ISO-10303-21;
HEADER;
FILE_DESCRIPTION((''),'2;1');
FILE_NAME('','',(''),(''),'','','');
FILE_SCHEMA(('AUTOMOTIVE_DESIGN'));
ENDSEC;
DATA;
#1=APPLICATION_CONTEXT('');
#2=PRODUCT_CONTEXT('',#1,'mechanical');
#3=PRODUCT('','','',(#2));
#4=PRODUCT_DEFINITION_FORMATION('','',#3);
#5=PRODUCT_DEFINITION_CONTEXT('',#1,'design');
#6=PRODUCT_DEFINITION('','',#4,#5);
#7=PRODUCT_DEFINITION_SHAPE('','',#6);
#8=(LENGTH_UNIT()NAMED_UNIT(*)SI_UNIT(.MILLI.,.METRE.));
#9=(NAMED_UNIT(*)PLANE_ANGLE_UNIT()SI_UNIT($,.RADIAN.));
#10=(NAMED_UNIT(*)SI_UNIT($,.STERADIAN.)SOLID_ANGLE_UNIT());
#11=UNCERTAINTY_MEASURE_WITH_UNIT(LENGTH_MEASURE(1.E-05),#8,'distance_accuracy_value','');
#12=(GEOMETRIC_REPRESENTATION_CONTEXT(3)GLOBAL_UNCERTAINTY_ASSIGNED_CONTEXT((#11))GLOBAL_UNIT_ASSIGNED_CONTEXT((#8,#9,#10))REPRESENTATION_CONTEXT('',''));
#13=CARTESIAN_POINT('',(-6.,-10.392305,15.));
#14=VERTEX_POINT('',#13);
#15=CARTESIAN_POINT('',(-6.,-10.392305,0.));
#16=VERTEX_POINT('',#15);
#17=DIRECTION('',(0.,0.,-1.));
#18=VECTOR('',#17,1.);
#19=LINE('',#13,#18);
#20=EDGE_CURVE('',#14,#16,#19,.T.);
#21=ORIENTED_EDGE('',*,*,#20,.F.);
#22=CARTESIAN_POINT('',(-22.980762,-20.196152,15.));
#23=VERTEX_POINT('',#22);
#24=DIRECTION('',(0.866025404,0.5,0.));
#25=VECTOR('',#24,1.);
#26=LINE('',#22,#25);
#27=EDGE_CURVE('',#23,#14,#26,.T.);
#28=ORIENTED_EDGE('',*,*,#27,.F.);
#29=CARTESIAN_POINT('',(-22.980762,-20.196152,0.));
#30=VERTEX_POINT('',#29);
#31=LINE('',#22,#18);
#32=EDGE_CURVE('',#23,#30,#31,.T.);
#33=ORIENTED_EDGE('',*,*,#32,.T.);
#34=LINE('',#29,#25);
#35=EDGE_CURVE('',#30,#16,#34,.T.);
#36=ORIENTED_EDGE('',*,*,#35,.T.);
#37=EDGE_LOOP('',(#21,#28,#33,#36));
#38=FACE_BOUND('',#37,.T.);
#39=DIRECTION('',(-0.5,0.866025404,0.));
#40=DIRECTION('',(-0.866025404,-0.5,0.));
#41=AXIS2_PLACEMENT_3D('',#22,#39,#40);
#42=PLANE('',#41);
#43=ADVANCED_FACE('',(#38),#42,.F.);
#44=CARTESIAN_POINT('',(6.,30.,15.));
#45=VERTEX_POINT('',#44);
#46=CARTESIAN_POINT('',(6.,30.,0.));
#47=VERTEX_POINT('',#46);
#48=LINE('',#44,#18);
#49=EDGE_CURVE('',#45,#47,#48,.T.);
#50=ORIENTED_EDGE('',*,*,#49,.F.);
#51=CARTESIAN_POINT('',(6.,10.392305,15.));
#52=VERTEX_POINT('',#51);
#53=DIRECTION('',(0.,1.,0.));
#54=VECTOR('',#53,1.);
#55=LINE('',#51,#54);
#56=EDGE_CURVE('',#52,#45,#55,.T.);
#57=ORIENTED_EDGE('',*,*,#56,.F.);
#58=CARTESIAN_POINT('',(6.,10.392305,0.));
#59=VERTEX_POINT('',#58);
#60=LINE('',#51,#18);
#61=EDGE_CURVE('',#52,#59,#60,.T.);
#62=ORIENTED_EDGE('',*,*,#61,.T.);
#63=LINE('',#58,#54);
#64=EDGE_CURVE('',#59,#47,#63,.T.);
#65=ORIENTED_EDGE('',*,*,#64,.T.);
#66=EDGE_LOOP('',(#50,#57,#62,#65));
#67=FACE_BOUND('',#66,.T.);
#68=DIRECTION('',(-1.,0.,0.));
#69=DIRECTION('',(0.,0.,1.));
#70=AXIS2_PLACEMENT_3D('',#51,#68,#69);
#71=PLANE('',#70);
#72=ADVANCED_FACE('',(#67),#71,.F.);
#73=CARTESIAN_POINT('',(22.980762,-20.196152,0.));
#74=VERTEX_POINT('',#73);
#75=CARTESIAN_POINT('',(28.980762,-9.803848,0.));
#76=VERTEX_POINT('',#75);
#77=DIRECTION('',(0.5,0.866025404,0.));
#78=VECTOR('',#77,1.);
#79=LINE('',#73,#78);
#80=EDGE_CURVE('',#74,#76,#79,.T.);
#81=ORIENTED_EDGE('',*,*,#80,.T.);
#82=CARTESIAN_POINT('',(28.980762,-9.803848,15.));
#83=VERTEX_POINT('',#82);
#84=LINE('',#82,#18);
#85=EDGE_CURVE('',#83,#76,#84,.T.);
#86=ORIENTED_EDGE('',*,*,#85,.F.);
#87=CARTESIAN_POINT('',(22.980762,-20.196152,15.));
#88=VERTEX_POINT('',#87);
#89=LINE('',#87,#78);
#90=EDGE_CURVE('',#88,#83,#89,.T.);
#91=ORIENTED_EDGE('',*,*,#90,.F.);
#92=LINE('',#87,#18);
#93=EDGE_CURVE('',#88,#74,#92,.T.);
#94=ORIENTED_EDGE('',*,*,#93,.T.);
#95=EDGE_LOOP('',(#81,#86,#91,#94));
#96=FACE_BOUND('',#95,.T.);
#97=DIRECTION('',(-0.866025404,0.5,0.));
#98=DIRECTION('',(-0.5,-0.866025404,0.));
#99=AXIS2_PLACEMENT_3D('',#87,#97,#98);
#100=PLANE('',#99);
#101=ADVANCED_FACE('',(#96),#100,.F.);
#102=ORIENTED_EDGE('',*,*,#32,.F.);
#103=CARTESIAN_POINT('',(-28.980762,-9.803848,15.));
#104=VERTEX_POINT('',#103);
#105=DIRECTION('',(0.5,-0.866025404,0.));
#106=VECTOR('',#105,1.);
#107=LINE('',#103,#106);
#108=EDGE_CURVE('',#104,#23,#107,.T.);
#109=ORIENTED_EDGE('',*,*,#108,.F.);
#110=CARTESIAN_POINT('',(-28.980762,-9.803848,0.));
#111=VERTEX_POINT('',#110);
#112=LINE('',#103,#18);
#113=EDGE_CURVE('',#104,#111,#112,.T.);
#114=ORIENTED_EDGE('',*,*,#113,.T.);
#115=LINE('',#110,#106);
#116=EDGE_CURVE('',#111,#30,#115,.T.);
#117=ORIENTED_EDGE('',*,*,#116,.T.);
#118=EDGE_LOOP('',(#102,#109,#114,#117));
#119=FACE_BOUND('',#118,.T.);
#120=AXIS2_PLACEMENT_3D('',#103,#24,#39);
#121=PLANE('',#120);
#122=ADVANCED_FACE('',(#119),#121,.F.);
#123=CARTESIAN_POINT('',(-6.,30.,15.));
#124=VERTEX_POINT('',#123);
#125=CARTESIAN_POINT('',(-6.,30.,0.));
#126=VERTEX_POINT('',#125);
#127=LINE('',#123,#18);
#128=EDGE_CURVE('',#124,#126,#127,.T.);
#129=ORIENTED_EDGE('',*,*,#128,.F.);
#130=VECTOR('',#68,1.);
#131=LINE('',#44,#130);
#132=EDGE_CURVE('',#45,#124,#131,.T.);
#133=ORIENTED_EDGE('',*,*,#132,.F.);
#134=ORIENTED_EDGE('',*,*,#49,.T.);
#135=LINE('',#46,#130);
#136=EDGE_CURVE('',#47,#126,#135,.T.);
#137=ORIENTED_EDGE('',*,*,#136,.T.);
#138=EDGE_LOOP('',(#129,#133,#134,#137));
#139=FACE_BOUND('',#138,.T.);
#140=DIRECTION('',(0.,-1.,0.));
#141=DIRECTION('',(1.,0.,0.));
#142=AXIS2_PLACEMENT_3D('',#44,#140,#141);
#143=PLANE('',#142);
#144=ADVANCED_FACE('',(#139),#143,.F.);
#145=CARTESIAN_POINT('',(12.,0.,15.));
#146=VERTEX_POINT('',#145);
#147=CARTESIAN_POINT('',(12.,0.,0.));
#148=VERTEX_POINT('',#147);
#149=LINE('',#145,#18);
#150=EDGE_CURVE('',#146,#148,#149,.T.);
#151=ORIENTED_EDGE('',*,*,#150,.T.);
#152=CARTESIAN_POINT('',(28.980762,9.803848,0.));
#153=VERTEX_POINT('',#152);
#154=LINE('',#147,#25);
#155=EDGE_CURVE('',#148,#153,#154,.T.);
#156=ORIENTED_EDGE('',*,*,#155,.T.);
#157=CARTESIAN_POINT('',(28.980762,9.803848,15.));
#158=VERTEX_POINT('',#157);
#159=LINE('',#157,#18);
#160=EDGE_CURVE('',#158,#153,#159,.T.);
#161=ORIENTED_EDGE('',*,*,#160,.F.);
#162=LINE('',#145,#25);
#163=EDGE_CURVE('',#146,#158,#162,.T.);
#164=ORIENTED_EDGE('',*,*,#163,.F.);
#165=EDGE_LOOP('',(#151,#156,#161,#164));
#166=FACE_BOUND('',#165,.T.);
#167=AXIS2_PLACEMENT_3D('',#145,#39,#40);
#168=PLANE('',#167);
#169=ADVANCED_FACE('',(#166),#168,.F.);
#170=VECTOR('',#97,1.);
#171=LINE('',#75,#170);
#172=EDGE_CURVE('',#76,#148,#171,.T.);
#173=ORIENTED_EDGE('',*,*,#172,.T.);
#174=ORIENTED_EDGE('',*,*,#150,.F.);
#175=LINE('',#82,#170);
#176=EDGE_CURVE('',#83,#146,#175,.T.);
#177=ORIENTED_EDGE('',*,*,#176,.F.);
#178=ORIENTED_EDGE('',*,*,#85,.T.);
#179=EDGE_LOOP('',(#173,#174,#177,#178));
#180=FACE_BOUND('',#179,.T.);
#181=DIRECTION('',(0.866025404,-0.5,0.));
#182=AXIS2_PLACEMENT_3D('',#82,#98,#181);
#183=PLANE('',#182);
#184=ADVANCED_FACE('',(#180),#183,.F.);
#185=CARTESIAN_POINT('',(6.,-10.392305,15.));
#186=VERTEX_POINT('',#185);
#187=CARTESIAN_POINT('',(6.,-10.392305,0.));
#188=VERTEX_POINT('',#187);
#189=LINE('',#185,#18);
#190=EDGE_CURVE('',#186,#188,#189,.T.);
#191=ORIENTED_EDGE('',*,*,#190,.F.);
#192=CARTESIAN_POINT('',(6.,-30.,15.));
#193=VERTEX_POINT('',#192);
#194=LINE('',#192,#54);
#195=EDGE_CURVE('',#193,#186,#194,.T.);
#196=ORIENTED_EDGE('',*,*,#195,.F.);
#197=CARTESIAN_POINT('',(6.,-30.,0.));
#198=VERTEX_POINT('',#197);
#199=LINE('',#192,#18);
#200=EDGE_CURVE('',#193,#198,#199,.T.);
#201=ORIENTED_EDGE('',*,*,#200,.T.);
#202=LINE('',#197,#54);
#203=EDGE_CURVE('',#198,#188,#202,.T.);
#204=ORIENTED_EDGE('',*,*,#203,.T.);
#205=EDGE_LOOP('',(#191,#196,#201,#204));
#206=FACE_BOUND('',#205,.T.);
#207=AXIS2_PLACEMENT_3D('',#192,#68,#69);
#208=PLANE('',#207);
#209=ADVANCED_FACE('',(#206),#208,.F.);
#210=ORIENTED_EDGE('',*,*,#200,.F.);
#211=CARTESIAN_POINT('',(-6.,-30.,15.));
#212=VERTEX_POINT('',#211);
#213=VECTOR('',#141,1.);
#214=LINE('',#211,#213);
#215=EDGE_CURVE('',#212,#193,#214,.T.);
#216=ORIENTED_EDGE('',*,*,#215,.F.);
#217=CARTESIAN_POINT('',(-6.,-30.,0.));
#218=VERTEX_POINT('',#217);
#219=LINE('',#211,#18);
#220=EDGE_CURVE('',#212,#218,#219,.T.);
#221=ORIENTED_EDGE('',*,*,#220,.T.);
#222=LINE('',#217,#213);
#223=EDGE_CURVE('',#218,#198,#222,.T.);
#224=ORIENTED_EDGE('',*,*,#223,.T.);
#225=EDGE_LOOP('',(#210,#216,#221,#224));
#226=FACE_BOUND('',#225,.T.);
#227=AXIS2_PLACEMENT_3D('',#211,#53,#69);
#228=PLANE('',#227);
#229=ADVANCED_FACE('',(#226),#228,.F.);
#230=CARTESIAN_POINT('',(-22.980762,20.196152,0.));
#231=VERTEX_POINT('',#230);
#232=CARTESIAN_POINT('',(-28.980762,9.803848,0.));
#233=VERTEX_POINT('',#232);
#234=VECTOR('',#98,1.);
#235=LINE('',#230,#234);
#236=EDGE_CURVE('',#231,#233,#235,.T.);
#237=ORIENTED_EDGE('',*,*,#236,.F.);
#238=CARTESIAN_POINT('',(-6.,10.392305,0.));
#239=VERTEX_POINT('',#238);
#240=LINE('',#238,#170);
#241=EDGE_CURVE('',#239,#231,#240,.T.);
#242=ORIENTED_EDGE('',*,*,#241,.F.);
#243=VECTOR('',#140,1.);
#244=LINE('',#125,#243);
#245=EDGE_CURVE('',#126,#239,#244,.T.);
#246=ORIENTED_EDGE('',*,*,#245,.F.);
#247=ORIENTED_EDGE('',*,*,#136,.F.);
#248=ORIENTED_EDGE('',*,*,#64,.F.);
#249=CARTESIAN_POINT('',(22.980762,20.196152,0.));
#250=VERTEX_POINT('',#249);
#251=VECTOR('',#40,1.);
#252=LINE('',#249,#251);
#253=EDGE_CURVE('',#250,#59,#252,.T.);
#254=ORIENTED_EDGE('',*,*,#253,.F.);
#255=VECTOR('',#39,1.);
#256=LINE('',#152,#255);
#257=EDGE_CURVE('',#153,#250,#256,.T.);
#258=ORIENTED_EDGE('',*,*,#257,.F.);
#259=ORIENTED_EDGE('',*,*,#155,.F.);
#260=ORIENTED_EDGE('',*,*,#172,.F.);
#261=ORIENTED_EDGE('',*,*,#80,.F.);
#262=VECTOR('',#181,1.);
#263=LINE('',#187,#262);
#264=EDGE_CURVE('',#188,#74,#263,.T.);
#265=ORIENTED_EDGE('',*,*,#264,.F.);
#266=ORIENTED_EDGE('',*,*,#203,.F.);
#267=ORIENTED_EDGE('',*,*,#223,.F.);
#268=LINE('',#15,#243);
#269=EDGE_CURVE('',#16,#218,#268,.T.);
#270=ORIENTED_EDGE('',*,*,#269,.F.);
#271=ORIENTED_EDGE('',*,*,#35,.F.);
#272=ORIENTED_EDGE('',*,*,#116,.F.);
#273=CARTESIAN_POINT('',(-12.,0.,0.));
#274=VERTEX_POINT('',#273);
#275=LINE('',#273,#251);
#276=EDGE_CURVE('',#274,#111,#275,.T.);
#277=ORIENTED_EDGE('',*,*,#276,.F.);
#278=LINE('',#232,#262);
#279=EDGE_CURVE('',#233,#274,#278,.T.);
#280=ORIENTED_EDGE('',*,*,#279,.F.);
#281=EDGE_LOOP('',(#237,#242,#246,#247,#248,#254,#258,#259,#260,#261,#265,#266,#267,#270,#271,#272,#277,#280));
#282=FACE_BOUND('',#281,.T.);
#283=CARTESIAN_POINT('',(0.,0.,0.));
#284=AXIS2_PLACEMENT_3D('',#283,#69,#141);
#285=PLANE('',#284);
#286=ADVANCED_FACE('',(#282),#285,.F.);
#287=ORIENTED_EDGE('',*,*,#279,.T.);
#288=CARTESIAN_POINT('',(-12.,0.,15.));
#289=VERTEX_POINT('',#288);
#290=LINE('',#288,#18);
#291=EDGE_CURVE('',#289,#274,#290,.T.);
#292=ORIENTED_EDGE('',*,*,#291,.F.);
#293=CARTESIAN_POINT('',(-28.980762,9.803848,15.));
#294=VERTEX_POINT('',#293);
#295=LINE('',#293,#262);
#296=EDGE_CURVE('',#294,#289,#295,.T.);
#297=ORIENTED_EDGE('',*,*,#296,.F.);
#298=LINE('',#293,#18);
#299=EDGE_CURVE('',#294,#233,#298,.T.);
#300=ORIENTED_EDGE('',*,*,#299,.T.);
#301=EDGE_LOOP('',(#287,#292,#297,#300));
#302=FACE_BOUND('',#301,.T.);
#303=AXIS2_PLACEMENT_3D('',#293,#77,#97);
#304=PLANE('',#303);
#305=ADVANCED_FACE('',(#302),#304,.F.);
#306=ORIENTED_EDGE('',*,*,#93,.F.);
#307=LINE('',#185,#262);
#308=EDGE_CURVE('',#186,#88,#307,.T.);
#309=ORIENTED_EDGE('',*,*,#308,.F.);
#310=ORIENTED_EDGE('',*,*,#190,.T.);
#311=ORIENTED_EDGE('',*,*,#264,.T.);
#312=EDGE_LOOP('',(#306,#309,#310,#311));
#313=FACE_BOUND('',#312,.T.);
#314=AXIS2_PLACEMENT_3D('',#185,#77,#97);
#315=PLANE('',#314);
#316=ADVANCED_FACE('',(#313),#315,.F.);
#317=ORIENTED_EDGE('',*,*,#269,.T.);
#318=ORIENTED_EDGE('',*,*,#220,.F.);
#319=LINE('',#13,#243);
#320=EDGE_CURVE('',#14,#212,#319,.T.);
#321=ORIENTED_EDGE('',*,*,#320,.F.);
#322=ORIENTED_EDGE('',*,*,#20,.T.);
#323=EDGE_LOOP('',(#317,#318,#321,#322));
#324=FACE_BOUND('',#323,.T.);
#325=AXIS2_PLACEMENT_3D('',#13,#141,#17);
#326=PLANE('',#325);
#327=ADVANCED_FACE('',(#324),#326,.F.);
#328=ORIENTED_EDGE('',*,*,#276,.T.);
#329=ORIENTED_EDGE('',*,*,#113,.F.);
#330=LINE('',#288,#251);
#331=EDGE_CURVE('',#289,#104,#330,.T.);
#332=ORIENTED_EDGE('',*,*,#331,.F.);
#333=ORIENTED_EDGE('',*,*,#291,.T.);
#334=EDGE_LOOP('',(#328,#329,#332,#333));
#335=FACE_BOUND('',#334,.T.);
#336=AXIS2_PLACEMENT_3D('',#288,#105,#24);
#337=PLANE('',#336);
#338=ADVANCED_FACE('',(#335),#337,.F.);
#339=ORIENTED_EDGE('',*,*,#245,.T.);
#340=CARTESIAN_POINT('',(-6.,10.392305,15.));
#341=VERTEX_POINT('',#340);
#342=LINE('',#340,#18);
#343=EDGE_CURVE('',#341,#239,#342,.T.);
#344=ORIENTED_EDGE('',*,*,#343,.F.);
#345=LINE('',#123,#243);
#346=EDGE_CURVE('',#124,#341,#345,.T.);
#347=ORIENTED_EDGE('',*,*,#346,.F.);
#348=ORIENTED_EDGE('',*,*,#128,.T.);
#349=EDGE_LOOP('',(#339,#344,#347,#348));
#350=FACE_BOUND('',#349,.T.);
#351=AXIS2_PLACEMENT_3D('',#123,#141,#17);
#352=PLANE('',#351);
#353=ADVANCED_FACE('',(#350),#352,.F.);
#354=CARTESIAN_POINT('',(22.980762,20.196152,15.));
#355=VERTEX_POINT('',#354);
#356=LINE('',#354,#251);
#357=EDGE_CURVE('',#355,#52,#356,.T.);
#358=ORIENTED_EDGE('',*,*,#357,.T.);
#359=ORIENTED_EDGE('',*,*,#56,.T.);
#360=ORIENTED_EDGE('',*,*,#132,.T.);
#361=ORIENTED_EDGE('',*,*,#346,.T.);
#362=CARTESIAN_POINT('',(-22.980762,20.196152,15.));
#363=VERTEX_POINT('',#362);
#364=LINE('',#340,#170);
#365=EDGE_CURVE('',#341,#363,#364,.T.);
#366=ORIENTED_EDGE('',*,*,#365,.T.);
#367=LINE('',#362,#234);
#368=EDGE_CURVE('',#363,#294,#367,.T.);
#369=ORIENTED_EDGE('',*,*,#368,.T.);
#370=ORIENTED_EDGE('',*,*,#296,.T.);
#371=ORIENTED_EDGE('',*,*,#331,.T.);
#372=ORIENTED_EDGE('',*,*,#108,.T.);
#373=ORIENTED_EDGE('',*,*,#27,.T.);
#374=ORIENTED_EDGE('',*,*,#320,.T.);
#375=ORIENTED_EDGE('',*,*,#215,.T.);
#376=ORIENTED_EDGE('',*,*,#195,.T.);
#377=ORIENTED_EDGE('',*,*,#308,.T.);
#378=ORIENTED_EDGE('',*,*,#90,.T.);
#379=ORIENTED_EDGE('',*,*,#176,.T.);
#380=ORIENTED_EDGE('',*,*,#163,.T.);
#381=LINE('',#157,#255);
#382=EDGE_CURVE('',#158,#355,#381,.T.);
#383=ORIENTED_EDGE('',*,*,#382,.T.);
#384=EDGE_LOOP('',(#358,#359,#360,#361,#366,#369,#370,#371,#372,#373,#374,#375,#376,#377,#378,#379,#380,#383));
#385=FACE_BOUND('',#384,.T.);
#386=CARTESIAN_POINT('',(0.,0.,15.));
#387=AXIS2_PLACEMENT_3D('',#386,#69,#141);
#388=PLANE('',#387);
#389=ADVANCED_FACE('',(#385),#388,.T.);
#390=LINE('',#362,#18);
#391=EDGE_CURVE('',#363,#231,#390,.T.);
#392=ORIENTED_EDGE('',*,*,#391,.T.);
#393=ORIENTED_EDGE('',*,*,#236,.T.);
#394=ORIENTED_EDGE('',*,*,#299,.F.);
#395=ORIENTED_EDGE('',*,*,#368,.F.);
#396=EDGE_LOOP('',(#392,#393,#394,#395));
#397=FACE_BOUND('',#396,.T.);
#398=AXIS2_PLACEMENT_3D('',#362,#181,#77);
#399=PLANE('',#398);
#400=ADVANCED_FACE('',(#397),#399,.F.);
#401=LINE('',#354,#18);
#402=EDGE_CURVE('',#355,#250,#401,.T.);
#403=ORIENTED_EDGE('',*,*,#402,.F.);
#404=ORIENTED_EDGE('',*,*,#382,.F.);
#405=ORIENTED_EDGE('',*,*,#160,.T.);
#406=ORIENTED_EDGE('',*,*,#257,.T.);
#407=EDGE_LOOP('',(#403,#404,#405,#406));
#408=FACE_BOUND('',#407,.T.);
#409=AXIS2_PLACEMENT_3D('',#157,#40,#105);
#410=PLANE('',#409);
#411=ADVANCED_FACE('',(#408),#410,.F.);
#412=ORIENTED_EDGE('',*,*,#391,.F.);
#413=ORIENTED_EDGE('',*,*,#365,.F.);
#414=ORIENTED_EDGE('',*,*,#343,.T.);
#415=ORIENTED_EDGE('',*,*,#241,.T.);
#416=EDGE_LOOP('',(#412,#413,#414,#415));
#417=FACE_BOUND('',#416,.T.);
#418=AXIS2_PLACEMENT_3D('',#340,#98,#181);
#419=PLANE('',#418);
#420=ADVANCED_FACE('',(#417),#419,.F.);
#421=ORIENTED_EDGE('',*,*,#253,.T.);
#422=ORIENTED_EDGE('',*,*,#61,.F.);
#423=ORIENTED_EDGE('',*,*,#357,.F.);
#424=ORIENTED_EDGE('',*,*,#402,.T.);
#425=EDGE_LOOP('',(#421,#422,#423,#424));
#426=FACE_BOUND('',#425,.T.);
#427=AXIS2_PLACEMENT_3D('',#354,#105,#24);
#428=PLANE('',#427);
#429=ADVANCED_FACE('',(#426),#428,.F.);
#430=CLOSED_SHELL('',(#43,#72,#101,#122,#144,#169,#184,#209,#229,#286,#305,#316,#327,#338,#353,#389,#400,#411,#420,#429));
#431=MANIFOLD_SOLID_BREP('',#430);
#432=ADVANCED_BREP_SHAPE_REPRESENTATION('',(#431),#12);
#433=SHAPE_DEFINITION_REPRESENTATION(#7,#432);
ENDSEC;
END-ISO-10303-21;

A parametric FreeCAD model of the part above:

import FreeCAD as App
import Part
import Sketcher
Q = App.Units.Quantity


def add_polygon(sketch, points):
    """Adds a closed chain of lines whose ends are joined by coincident constraints."""
    first, n = sketch.GeometryCount, len(points)
    for a, b in zip(points, points[1:] + points[:1]):
        sketch.addGeometry(Part.LineSegment(App.Vector(*a, 0), App.Vector(*b, 0)), False)
    for i in range(n):
        sketch.addConstraint(Sketcher.Constraint("Coincident", first + i, 2, first + (i + 1) % n, 1))

doc = App.newDocument("Part")
body = doc.addObject("PartDesign::Body", "Body")

# Sketch on XY plane
sketch1 = body.newObject("Sketcher::SketchObject", "Sketch")
sketch1.AttachmentSupport = (doc.getObject("XY_Plane"), [""])
sketch1.MapMode = "FlatFace"
add_polygon(sketch1, [(-23, 20), (-29, 10), (-12, 0), (-29, -10), (-23, -20), (-6, -10), (-6, -30), (6, -30), (6, -10), (23, -20), (29, -10), (12, 0), (29, 10), (23, 20), (6, 10), (6, 30), (-6, 30), (-6, 10)])  # lines 0-17
sketch1.addConstraint(Sketcher.Constraint("Vertical", 5))
sketch1.addConstraint(Sketcher.Constraint("Horizontal", 6))
sketch1.addConstraint(Sketcher.Constraint("Vertical", 7))
sketch1.addConstraint(Sketcher.Constraint("Vertical", 14))
sketch1.addConstraint(Sketcher.Constraint("Horizontal", 15))
sketch1.addConstraint(Sketcher.Constraint("Vertical", 16))
sketch1.addConstraint(Sketcher.Constraint("Symmetric", 0, 2, 9, 2, -1, 1))
sketch1.addConstraint(Sketcher.Constraint("Symmetric", 1, 2, 10, 2, -1, 1))
sketch1.addConstraint(Sketcher.Constraint("Symmetric", 2, 2, 11, 2, -1, 1))
sketch1.addConstraint(Sketcher.Constraint("Symmetric", 3, 2, 12, 2, -1, 1))
sketch1.addConstraint(Sketcher.Constraint("Symmetric", 4, 2, 13, 2, -1, 1))
sketch1.addConstraint(Sketcher.Constraint("Symmetric", 6, 2, 15, 2, -1, 1))
sketch1.addConstraint(Sketcher.Constraint("Symmetric", 8, 2, 17, 2, -1, 1))
sketch1.addConstraint(Sketcher.Constraint("Symmetric", 4, 2, 7, 2, -2))
sketch1.addConstraint(Sketcher.Constraint("Symmetric", 3, 2, 8, 2, -2))
sketch1.addConstraint(Sketcher.Constraint("Symmetric", 2, 2, 9, 2, -2))
sketch1.addConstraint(Sketcher.Constraint("PointOnObject", 1, 2, -1))
sketch1.addConstraint(Sketcher.Constraint("Perpendicular", 0, 1))
sketch1.addConstraint(Sketcher.Constraint("Perpendicular", 3, 4))
sketch1.addConstraint(Sketcher.Constraint("Parallel", 10, 17))
sketch1.addConstraint(Sketcher.Constraint("Equal", 2, 4))
sketch1.addConstraint(Sketcher.Constraint("DistanceX", 6, 1, 6, 2, Q("12 mm")))
sketch1.addConstraint(Sketcher.Constraint("Angle", 0, Q("-120 deg")))
sketch1.addConstraint(Sketcher.Constraint("Distance", 0, Q("12 mm")))
sketch1.addConstraint(Sketcher.Constraint("DistanceY", 5, 2, -1, 1, Q("30 mm")))
sketch1.addConstraint(Sketcher.Constraint("DistanceY", 3, 2, 0, 2, Q("30 mm")))
pad1 = body.newObject("PartDesign::Pad", "Pad")
pad1.Profile = sketch1
pad1.Length = 15

doc.recompute()
